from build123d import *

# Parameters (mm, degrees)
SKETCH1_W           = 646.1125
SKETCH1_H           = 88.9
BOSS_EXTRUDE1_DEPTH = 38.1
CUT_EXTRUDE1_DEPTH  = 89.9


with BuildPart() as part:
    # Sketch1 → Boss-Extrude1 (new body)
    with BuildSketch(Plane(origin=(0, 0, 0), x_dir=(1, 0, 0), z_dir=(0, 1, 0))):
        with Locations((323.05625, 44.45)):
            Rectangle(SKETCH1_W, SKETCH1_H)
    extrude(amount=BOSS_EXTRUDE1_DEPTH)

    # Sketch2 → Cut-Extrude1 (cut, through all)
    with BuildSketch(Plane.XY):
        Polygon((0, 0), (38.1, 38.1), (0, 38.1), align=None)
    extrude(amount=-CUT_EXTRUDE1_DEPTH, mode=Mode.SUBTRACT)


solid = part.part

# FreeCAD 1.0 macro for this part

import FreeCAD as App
import Part
import Sketcher

V = App.Vector
Q = App.Units.Quantity

doc = App.newDocument("Part")
body = doc.addObject("PartDesign::Body", "Body")

sketch1 = doc.addObject("Sketcher::SketchObject", "Sketch")
body.addObject(sketch1)
sketch1.AttachmentSupport = (doc.XZ_Plane, [""])
sketch1.MapMode = "FlatFace"
sketch1.addGeometry(Part.LineSegment(V(0, -89, 0), V(0, 0, 0)), False)
sketch1.addGeometry(Part.LineSegment(V(0, 0, 0), V(646, 0, 0)), False)
sketch1.addGeometry(Part.LineSegment(V(646, 0, 0), V(646, -89, 0)), False)
sketch1.addGeometry(Part.LineSegment(V(646, -89, 0), V(0, -89, 0)), False)
sketch1.addConstraint(Sketcher.Constraint("Coincident", 0, 2, 1, 1))
sketch1.addConstraint(Sketcher.Constraint("Coincident", 1, 2, 2, 1))
sketch1.addConstraint(Sketcher.Constraint("Coincident", 2, 2, 3, 1))
sketch1.addConstraint(Sketcher.Constraint("Coincident", 3, 2, 0, 1))
sketch1.addConstraint(Sketcher.Constraint("Vertical", 0))
sketch1.addConstraint(Sketcher.Constraint("Horizontal", 1))
sketch1.addConstraint(Sketcher.Constraint("Vertical", 2))
sketch1.addConstraint(Sketcher.Constraint("Horizontal", 3))
sketch1.addConstraint(Sketcher.Constraint("Coincident", 0, 2, -1, 1))
sketch1.addConstraint(Sketcher.Constraint("DistanceY", 0, 1, 0, 2, Q("3.5 in")))
sketch1.addConstraint(Sketcher.Constraint("DistanceX", 1, 1, 1, 2, Q("25.4375 in")))
pad1 = doc.addObject("PartDesign::Pad", "Pad")
body.addObject(pad1)
pad1.Profile = sketch1
pad1.Length = Q("1.5 in")
pad1.Reversed = True

sketch2 = doc.addObject("Sketcher::SketchObject", "Sketch001")
body.addObject(sketch2)
sketch2.AttachmentSupport = (doc.XY_Plane, [""])
sketch2.MapMode = "FlatFace"
sketch2.addGeometry(Part.LineSegment(V(0, 0, 0), V(38, 38, 0)), False)
sketch2.addGeometry(Part.LineSegment(V(38, 38, 0), V(0, 38, 0)), False)
sketch2.addGeometry(Part.LineSegment(V(0, 38, 0), V(0, 0, 0)), False)
sketch2.addConstraint(Sketcher.Constraint("Coincident", 0, 2, 1, 1))
sketch2.addConstraint(Sketcher.Constraint("Coincident", 1, 2, 2, 1))
sketch2.addConstraint(Sketcher.Constraint("Coincident", 2, 2, 0, 1))
sketch2.addConstraint(Sketcher.Constraint("Horizontal", 1))
sketch2.addConstraint(Sketcher.Constraint("Vertical", 2))
sketch2.addConstraint(Sketcher.Constraint("Coincident", 2, 2, -1, 1))
sketch2.addConstraint(Sketcher.Constraint("Equal", 1, 2))
sketch2.addConstraint(Sketcher.Constraint("DistanceX", 1, 2, 1, 1, Q("1.5 in")))
pocket1 = doc.addObject("PartDesign::Pocket", "Pocket")
body.addObject(pocket1)
pocket1.Profile = sketch2
pocket1.Type = "ThroughAll"

doc.recompute()
